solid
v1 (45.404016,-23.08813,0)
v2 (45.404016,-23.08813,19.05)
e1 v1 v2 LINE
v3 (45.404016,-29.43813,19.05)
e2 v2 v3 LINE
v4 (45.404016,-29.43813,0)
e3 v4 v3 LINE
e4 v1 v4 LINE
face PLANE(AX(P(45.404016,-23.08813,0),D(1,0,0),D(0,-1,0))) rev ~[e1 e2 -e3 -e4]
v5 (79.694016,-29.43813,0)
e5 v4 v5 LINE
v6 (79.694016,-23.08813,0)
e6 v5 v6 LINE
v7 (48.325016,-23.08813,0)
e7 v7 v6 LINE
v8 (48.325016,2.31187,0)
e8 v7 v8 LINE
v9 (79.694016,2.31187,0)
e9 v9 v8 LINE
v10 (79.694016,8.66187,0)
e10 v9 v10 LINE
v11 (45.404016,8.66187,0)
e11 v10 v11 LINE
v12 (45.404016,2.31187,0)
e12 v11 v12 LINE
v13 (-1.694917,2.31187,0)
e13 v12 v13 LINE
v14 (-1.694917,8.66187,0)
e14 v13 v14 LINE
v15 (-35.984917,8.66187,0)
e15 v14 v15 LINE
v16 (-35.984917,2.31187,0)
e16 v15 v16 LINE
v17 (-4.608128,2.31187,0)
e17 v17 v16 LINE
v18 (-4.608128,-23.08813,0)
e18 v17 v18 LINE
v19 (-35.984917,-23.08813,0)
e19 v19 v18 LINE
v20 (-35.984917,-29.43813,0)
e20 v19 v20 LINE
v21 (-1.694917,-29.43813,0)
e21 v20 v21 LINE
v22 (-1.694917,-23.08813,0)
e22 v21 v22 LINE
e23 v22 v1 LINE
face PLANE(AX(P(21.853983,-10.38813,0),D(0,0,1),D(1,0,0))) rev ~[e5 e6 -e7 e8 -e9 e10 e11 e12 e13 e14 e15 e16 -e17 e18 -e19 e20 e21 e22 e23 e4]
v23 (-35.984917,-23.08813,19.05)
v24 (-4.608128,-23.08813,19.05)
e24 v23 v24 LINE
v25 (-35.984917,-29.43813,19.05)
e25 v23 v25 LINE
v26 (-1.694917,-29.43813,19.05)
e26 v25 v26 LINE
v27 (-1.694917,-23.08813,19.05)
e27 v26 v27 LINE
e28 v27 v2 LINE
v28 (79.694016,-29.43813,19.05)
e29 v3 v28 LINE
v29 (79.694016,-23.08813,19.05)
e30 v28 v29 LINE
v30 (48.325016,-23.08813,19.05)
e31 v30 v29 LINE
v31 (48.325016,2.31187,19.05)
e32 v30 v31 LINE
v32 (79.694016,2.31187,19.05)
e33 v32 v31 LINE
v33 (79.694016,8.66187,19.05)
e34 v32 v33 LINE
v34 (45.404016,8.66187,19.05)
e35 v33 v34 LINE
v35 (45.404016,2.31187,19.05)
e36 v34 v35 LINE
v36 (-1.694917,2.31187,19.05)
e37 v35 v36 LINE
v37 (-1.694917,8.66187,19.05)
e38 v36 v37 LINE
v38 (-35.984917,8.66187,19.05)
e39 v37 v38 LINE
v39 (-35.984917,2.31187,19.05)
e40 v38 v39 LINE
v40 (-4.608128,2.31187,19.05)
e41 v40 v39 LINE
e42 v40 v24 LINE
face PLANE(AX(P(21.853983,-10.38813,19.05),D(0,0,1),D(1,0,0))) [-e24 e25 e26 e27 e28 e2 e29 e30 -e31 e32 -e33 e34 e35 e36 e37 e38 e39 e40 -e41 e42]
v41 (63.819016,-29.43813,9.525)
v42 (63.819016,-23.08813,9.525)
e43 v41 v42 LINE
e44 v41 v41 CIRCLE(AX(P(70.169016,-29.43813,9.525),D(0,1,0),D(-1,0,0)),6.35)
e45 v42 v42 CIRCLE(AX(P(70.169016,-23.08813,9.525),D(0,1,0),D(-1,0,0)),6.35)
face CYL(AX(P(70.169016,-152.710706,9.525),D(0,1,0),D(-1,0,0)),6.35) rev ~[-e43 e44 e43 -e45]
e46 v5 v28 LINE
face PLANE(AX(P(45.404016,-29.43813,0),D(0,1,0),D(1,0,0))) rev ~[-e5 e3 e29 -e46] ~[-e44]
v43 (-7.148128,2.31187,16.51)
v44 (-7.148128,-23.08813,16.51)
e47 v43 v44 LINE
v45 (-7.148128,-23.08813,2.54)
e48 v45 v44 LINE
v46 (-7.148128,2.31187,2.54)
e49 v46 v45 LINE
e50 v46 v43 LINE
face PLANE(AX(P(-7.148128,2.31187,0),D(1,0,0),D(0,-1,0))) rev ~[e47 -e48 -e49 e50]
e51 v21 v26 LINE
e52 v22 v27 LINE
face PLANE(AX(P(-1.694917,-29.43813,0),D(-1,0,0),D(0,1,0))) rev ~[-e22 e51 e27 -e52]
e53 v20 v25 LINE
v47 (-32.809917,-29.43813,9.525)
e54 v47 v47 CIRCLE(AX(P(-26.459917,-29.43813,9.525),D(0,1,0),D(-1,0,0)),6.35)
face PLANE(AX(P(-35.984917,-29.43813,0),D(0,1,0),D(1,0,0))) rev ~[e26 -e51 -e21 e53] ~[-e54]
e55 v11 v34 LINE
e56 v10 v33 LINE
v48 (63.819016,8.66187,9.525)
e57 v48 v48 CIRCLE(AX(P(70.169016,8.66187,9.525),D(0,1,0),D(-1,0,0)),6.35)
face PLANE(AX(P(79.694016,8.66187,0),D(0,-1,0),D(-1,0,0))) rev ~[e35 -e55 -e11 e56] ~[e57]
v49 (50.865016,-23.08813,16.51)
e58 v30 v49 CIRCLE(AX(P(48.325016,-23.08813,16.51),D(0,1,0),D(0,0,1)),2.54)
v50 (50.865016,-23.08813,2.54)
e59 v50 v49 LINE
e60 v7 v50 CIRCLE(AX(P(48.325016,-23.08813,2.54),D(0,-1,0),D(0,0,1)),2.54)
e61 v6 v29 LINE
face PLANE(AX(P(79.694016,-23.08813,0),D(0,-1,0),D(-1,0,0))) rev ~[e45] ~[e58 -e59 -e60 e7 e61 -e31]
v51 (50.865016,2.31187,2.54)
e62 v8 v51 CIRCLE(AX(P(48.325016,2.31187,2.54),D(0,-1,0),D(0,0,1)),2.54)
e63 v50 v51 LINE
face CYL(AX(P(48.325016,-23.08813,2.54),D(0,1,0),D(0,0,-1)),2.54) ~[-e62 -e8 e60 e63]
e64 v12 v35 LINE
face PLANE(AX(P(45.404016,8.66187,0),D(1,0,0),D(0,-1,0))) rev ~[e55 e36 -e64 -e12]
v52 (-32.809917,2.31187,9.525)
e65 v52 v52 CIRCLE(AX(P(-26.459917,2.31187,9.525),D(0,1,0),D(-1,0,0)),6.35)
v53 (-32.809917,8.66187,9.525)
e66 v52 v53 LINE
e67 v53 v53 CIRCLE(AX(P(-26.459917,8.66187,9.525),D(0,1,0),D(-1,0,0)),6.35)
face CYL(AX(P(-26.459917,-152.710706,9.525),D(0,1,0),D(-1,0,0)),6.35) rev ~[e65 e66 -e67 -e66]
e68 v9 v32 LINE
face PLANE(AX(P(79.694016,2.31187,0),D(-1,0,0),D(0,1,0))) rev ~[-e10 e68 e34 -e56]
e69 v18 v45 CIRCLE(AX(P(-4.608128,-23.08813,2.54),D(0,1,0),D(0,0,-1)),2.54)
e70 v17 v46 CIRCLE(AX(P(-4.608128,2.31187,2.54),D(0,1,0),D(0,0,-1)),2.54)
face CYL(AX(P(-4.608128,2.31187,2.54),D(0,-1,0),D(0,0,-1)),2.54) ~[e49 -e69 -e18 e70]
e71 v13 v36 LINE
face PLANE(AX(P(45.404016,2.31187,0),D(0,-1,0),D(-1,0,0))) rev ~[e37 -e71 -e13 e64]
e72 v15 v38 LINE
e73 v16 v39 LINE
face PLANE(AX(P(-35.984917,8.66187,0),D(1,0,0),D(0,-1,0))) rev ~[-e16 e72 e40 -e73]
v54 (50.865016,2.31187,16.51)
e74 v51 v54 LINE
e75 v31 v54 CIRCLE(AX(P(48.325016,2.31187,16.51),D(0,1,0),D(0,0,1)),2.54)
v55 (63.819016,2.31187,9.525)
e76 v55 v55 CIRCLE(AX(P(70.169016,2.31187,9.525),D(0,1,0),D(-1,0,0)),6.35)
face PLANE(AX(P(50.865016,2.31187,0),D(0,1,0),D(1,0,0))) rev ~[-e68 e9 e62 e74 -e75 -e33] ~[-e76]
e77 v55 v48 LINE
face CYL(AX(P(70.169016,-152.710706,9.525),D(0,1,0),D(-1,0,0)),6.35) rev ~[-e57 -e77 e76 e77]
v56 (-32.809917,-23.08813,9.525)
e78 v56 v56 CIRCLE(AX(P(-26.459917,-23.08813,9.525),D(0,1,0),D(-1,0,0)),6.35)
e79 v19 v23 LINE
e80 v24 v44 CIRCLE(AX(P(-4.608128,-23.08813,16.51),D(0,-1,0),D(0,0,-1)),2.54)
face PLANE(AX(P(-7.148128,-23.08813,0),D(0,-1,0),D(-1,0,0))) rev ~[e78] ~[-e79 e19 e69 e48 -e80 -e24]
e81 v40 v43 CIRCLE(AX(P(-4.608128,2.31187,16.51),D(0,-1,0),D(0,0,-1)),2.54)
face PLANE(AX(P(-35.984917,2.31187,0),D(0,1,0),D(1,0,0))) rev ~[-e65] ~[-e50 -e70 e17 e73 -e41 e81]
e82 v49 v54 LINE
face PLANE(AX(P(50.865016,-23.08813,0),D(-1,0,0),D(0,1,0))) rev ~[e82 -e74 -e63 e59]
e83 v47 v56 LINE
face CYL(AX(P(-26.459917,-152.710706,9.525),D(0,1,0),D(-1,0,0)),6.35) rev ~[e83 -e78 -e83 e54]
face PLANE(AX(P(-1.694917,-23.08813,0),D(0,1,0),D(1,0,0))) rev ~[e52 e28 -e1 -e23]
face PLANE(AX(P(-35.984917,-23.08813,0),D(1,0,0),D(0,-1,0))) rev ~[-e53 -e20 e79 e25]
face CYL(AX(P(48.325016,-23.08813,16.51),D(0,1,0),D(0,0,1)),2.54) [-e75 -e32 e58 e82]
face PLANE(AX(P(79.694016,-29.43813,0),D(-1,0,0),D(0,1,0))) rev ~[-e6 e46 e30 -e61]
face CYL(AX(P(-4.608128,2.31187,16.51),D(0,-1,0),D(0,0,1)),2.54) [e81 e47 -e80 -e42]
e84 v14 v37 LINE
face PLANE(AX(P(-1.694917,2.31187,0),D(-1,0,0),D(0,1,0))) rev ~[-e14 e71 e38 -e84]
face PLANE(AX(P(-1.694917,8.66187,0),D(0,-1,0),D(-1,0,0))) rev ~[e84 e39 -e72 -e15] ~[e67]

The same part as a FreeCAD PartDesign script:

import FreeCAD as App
import Part
import Sketcher

V = App.Vector
Q = App.Units.Quantity


def edges_at(feature, points):
    """Names of the edges that pass closest to the given points."""
    edges = feature.Shape.Edges
    near = lambda p: min(range(len(edges)), key=lambda i: edges[i].distToShape(Part.Vertex(*p))[0])
    return sorted({f"Edge{near(p) + 1}" for p in points})

doc = App.newDocument("Part")
body = doc.addObject("PartDesign::Body", "Body")

# Sketch on XY plane
sketch1 = body.newObject("Sketcher::SketchObject", "Sketch")
sketch1.AttachmentSupport = (doc.getObject("XY_Plane"), [""])
sketch1.MapMode = "FlatFace"
sketch1.addGeometry([
    Part.LineSegment(V(45.404016, 2.31187, 0), V(-1.694917, 2.31187, 0)),  # 0
    Part.LineSegment(V(-1.694917, 2.31187, 0), V(-1.694917, 8.66187, 0)),  # 1
    Part.LineSegment(V(-1.694917, 8.66187, 0), V(-35.984917, 8.66187, 0)),  # 2
    Part.LineSegment(V(-35.984917, 8.66187, 0), V(-35.984917, 2.31187, 0)),  # 3
    Part.LineSegment(V(-35.984917, 2.31187, 0), V(-7.148128, 2.31187, 0)),  # 4
    Part.LineSegment(V(-7.148128, 2.31187, 0), V(-7.148128, -23.08813, 0)),  # 5
    Part.LineSegment(V(-7.148128, -23.08813, 0), V(-35.984917, -23.08813, 0)),  # 6
    Part.LineSegment(V(-35.984917, -23.08813, 0), V(-35.984917, -29.43813, 0)),  # 7
    Part.LineSegment(V(-35.984917, -29.43813, 0), V(-1.694917, -29.43813, 0)),  # 8
    Part.LineSegment(V(-1.694917, -29.43813, 0), V(-1.694917, -23.08813, 0)),  # 9
    Part.LineSegment(V(-1.694917, -23.08813, 0), V(45.404016, -23.08813, 0)),  # 10
    Part.LineSegment(V(45.404016, -23.08813, 0), V(45.404016, -29.43813, 0)),  # 11
    Part.LineSegment(V(45.404016, -29.43813, 0), V(79.694016, -29.43813, 0)),  # 12
    Part.LineSegment(V(79.694016, -29.43813, 0), V(79.694016, -23.08813, 0)),  # 13
    Part.LineSegment(V(79.694016, -23.08813, 0), V(50.865016, -23.08813, 0)),  # 14
    Part.LineSegment(V(50.865016, -23.08813, 0), V(50.865016, 2.31187, 0)),  # 15
    Part.LineSegment(V(50.865016, 2.31187, 0), V(79.694016, 2.31187, 0)),  # 16
    Part.LineSegment(V(79.694016, 2.31187, 0), V(79.694016, 8.66187, 0)),  # 17
    Part.LineSegment(V(79.694016, 8.66187, 0), V(45.404016, 8.66187, 0)),  # 18
    Part.LineSegment(V(45.404016, 8.66187, 0), V(45.404016, 2.31187, 0)),  # 19
], False)
sketch1.addConstraint([
    Sketcher.Constraint("Coincident", 0, 2, 1, 1),
    Sketcher.Constraint("Coincident", 1, 2, 2, 1),
    Sketcher.Constraint("Coincident", 2, 2, 3, 1),
    Sketcher.Constraint("Coincident", 3, 2, 4, 1),
    Sketcher.Constraint("Coincident", 4, 2, 5, 1),
    Sketcher.Constraint("Coincident", 5, 2, 6, 1),
    Sketcher.Constraint("Coincident", 6, 2, 7, 1),
    Sketcher.Constraint("Coincident", 7, 2, 8, 1),
    Sketcher.Constraint("Coincident", 8, 2, 9, 1),
    Sketcher.Constraint("Coincident", 9, 2, 10, 1),
    Sketcher.Constraint("Coincident", 10, 2, 11, 1),
    Sketcher.Constraint("Coincident", 11, 2, 12, 1),
    Sketcher.Constraint("Coincident", 12, 2, 13, 1),
    Sketcher.Constraint("Coincident", 13, 2, 14, 1),
    Sketcher.Constraint("Coincident", 14, 2, 15, 1),
    Sketcher.Constraint("Coincident", 15, 2, 16, 1),
    Sketcher.Constraint("Coincident", 16, 2, 17, 1),
    Sketcher.Constraint("Coincident", 17, 2, 18, 1),
    Sketcher.Constraint("Coincident", 18, 2, 19, 1),
    Sketcher.Constraint("Coincident", 19, 2, 0, 1),
    Sketcher.Constraint("Horizontal", 0),
    Sketcher.Constraint("Vertical", 1),
    Sketcher.Constraint("Horizontal", 2),
    Sketcher.Constraint("Vertical", 3),
    Sketcher.Constraint("Horizontal", 4),
    Sketcher.Constraint("Vertical", 5),
    Sketcher.Constraint("Horizontal", 6),
    Sketcher.Constraint("Vertical", 7),
    Sketcher.Constraint("Horizontal", 8),
    Sketcher.Constraint("Vertical", 9),
    Sketcher.Constraint("Horizontal", 10),
    Sketcher.Constraint("Vertical", 11),
    Sketcher.Constraint("Horizontal", 12),
    Sketcher.Constraint("Vertical", 13),
    Sketcher.Constraint("Horizontal", 14),
    Sketcher.Constraint("Vertical", 15),
    Sketcher.Constraint("Horizontal", 16),
    Sketcher.Constraint("Vertical", 17),
    Sketcher.Constraint("Horizontal", 18),
    Sketcher.Constraint("Vertical", 19),
    Sketcher.Constraint("Horizontal", 0, 2, 3, 2),
    Sketcher.Constraint("Horizontal", 6, 2, 9, 2),
    Sketcher.Constraint("Horizontal", 8, 2, 11, 2),
    Sketcher.Constraint("Horizontal", 10, 2, 13, 2),
    Sketcher.Constraint("Horizontal", 4, 2, 15, 2),
    Sketcher.Constraint("Horizontal", 2, 2, 17, 2),
    Sketcher.Constraint("Vertical", 3, 2, 6, 2),
    Sketcher.Constraint("Vertical", 1, 2, 8, 2),
    Sketcher.Constraint("Vertical", 13, 2, 16, 2),
    Sketcher.Constraint("Vertical", 11, 2, 18, 2),
    Sketcher.Constraint("Equal", 8, 12),
    Sketcher.Constraint("Equal", 3, 7),
    Sketcher.Constraint("DistanceY", 5, 2, 5, 1, Q("1 in")),
    Sketcher.Constraint("DistanceX", 2, 2, 2, 1, Q("1.35 in")),
    Sketcher.Constraint("DistanceY", 1, 1, 1, 2, Q("0.25 in")),
    Sketcher.Constraint("DistanceX", 14, 2, 14, 1, Q("1.135 in")),
    Sketcher.Constraint("DistanceX", 4, 1, 4, 2, Q("28.836789 mm")),
    Sketcher.Constraint("DistanceX", 0, 2, 0, 1, Q("47.098933 mm")),
    Sketcher.Constraint("DistanceY", -1, 1, 0, 2, Q("2.31187 mm")),
    Sketcher.Constraint("DistanceX", 0, 2, -1, 1, Q("1.694917 mm")),
])
pad1 = body.newObject("PartDesign::Pad", "Pad")
pad1.Profile = sketch1
pad1.Length = Q("0.75 in")

# Sketch on XZ plane
sketch2 = body.newObject("Sketcher::SketchObject", "Sketch001")
sketch2.AttachmentSupport = (doc.getObject("XZ_Plane"), [""])
sketch2.MapMode = "FlatFace"
sketch2.AttachmentOffset = App.Placement(V(0, 0, 29.43813), App.Rotation())
sketch2.addGeometry(Part.Circle(V(-26.459917, 9.525, 0), V(0, 0, 1), 6.35), False)
sketch2.addConstraint([
    Sketcher.Constraint("Diameter", 0, Q("0.5 in")),
    Sketcher.Constraint("DistanceY", -1, 1, 0, 3, Q("0.375 in")),
    Sketcher.Constraint("DistanceX", 0, 3, -1, 1, Q("26.459917 mm")),
])
doc.recompute()
hole = body.newObject("PartDesign::Hole", "Hole")
hole.Profile = sketch2
hole.ThreadType = "None"
hole.Diameter = Q("0.5 in")
hole.DepthType = "ThroughAll"

# Sketch on XZ plane
sketch3 = body.newObject("Sketcher::SketchObject", "Sketch002")
sketch3.AttachmentSupport = (doc.getObject("XZ_Plane"), [""])
sketch3.MapMode = "FlatFace"
sketch3.AttachmentOffset = App.Placement(V(0, 0, 29.43813), App.Rotation())
sketch3.addGeometry(Part.Circle(V(70.169016, 9.525, 0), V(0, 0, 1), 6.35), False)
sketch3.addConstraint([
    Sketcher.Constraint("Diameter", 0, Q("0.5 in")),
    Sketcher.Constraint("DistanceY", -1, 1, 0, 3, Q("0.375 in")),
    Sketcher.Constraint("DistanceX", -1, 1, 0, 3, Q("70.169016 mm")),
])
doc.recompute()
hole2 = body.newObject("PartDesign::Hole", "Hole001")
hole2.Profile = sketch3
hole2.ThreadType = "None"
hole2.Diameter = Q("0.5 in")
hole2.DepthType = "ThroughAll"
doc.recompute()

fillet = body.newObject("PartDesign::Fillet", "Fillet")
fillet.Base = (hole2, edges_at(hole2, [
    (50.865, -10.388, 19.05),
    (50.865, -10.388, 0),
    (-7.148, -10.388, 19.05),
    (-7.148, -10.388, 0),
]))
fillet.Radius = Q("0.1 in")

doc.recompute()
